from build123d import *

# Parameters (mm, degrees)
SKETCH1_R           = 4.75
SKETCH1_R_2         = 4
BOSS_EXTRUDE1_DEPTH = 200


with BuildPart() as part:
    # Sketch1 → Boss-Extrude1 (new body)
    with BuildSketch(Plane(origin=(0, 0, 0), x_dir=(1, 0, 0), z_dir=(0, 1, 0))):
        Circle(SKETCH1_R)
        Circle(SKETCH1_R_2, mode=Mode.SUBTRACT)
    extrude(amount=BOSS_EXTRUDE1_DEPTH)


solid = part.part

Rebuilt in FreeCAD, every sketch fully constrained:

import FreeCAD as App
import Part
import Sketcher

doc = App.newDocument("Part")
params = doc.addObject("Spreadsheet::Sheet", "Params")
for row, (alias, value) in enumerate([
    ("sketch1_diameter", "8 mm"),
    ("sketch1_diameter2", "9.5 mm"),
    ("pad1_length", "200 mm"),
], start=1):
    params.set(f"A{row}", alias)
    params.set(f"B{row}", "=" + value)
    params.setAlias(f"B{row}", alias)

body = doc.addObject("PartDesign::Body", "Body")

# Sketch on XZ plane
sketch1 = doc.addObject("Sketcher::SketchObject", "Sketch")
body.addObject(sketch1)
sketch1.AttachmentSupport = (doc.XZ_Plane, [""])
sketch1.MapMode = "FlatFace"
sketch1.addGeometry([
    Part.Circle(App.Vector(0, 0, 0), App.Vector(0, 0, 1), 4.8),
    Part.Circle(App.Vector(0, 0, 0), App.Vector(0, 0, 1), 4),
], False)
sketch1.addConstraint([
    Sketcher.Constraint("Coincident", 0, 3, -1, 1),
    Sketcher.Constraint("Coincident", 1, 3, -1, 1),
    Sketcher.Constraint("Diameter", 1, 8.0),
    Sketcher.Constraint("Diameter", 0, 9.5),
])
sketch1.setExpression("Constraints[2]", "Params.sketch1_diameter")
sketch1.setExpression("Constraints[3]", "Params.sketch1_diameter2")
pad1 = doc.addObject("PartDesign::Pad", "Pad")
body.addObject(pad1)
pad1.Profile = sketch1
pad1.setExpression("Length", "Params.pad1_length")
pad1.Reversed = True

doc.recompute()
